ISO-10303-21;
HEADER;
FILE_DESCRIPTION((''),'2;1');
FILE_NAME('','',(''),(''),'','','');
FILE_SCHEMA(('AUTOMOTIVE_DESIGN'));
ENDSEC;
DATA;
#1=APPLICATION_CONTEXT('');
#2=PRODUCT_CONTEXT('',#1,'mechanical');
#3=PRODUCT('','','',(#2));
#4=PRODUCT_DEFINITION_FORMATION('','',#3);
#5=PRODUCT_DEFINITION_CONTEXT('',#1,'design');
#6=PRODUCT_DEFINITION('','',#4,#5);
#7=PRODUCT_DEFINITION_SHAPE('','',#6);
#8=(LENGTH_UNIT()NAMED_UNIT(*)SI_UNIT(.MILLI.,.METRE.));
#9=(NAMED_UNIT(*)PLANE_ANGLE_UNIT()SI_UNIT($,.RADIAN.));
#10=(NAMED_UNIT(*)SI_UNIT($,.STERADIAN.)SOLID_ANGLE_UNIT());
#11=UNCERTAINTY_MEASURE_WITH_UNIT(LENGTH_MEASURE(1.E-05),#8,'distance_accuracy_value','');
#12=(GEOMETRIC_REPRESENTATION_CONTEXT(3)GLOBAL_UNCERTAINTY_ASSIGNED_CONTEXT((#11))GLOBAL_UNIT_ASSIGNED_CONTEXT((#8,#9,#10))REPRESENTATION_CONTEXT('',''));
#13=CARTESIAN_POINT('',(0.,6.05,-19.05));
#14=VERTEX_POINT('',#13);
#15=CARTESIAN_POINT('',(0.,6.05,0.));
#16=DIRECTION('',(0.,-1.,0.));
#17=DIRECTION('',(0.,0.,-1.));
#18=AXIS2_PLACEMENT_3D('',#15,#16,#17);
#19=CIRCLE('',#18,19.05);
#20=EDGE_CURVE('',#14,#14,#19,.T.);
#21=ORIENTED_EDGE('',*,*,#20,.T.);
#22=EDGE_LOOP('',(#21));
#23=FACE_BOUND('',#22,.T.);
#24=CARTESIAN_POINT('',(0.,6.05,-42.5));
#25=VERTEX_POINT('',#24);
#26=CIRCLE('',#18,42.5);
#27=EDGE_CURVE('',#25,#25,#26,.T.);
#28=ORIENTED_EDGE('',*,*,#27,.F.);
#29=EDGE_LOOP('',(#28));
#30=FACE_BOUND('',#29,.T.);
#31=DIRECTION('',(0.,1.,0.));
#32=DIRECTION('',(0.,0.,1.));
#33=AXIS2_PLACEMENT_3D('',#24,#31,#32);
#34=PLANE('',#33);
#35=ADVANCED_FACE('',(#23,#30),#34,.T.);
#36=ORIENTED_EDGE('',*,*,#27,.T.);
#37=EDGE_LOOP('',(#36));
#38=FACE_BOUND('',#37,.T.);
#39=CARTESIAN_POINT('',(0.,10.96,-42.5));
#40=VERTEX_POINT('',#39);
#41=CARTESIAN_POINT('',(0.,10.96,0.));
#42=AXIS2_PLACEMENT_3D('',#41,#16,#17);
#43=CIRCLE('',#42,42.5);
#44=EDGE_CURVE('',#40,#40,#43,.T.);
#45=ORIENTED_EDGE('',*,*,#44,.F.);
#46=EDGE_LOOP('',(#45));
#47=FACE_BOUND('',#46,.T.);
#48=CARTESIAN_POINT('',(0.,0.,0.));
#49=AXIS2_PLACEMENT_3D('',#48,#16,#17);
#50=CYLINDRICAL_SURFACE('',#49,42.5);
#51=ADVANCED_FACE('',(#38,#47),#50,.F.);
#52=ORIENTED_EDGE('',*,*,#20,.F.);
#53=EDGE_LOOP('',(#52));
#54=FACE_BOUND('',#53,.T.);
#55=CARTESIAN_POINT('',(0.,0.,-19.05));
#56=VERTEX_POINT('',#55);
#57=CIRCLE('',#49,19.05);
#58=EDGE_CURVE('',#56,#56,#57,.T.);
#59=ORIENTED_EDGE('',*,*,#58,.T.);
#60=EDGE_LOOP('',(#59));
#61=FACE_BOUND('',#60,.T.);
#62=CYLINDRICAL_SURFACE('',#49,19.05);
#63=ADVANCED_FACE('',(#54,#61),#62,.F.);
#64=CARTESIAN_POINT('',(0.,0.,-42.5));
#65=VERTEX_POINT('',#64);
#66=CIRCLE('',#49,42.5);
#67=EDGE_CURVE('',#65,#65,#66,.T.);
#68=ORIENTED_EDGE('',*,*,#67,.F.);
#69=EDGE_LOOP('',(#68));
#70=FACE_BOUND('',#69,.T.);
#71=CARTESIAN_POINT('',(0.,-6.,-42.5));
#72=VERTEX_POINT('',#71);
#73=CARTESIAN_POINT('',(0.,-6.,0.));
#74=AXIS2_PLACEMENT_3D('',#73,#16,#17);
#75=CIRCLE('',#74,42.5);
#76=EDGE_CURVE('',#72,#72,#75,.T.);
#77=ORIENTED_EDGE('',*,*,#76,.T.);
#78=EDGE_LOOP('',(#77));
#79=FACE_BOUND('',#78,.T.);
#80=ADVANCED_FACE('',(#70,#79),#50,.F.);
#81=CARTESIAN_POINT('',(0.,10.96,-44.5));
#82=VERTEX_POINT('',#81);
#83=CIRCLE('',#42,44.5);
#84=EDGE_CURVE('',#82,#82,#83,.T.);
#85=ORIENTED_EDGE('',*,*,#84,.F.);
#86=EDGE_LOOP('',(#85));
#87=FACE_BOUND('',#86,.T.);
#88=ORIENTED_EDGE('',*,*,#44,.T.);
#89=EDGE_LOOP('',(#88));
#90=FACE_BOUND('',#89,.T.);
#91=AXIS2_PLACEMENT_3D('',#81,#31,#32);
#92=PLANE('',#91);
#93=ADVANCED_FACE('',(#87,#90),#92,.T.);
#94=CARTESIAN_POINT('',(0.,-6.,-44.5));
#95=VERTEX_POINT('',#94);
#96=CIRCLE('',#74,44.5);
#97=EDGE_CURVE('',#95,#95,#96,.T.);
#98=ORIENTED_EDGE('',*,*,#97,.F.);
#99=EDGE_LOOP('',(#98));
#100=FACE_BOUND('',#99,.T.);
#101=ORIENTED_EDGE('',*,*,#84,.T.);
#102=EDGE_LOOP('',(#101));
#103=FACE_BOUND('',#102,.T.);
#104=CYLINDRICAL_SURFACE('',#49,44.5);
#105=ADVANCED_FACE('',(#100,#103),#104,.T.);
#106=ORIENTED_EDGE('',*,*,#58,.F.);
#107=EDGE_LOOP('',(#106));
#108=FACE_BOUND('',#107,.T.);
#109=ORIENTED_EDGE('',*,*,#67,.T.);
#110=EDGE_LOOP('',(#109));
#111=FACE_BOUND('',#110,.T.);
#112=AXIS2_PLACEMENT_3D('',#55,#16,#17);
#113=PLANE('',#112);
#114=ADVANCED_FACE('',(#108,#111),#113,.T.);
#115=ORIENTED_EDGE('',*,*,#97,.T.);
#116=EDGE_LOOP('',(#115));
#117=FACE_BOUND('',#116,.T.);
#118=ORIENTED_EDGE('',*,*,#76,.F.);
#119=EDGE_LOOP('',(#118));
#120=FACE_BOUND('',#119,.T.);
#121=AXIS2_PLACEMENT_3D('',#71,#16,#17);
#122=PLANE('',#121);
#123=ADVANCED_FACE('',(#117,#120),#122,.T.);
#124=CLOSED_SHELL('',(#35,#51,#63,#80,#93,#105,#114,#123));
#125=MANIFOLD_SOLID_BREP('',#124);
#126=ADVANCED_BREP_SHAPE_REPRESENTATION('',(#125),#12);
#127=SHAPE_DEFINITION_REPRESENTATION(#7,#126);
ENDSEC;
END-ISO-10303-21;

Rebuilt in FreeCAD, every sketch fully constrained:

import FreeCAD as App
import Part
import Sketcher
Q = App.Units.Quantity


def add_polygon(sketch, points):
    """Adds a closed chain of lines whose ends are joined by coincident constraints."""
    first, n = sketch.GeometryCount, len(points)
    for a, b in zip(points, points[1:] + points[:1]):
        sketch.addGeometry(Part.LineSegment(App.Vector(*a, 0), App.Vector(*b, 0)), False)
    for i in range(n):
        sketch.addConstraint(Sketcher.Constraint("Coincident", first + i, 2, first + (i + 1) % n, 1))

doc = App.newDocument("Part")
body = doc.addObject("PartDesign::Body", "Body")

# Sketch on YZ plane
sketch1 = body.newObject("Sketcher::SketchObject", "Sketch")
sketch1.AttachmentSupport = (doc.getObject("YZ_Plane"), [""])
sketch1.MapMode = "FlatFace"
add_polygon(sketch1, [(0, -19.1), (0, -42.5), (-6, -42.5), (-6, -44.5), (11, -44.5), (11, -42.5), (6, -42.5), (6, -19.1)])  # lines 0-7
sketch1.addConstraint([
    Sketcher.Constraint("Vertical", 0),
    Sketcher.Constraint("Horizontal", 1),
    Sketcher.Constraint("Vertical", 2),
    Sketcher.Constraint("Horizontal", 3),
    Sketcher.Constraint("Vertical", 4),
    Sketcher.Constraint("Horizontal", 5),
    Sketcher.Constraint("Vertical", 6),
    Sketcher.Constraint("Horizontal", 7),
    Sketcher.Constraint("PointOnObject", 0, 2, -2),
    Sketcher.Constraint("Horizontal", 1, 2, 4, 2),
    Sketcher.Constraint("DistanceX", 1, 2, 1, 1, Q("6 mm")),
    Sketcher.Constraint("DistanceY", 2, 2, 2, 1, Q("2 mm")),
    Sketcher.Constraint("DistanceX", 3, 1, 3, 2, Q("16.96 mm")),
    Sketcher.Constraint("DistanceX", 5, 2, 5, 1, Q("4.91 mm")),
    Sketcher.Constraint("DistanceY", 0, 2, 0, 1, Q("23.45 mm")),
    Sketcher.Constraint("DistanceY", 0, 2, -1, 1, Q("42.5 mm")),
])
revolution = body.newObject("PartDesign::Revolution", "Revolution")
revolution.Profile = sketch1
revolution.ReferenceAxis = (sketch1, ["H_Axis"])
revolution.Angle = 360

doc.recompute()
